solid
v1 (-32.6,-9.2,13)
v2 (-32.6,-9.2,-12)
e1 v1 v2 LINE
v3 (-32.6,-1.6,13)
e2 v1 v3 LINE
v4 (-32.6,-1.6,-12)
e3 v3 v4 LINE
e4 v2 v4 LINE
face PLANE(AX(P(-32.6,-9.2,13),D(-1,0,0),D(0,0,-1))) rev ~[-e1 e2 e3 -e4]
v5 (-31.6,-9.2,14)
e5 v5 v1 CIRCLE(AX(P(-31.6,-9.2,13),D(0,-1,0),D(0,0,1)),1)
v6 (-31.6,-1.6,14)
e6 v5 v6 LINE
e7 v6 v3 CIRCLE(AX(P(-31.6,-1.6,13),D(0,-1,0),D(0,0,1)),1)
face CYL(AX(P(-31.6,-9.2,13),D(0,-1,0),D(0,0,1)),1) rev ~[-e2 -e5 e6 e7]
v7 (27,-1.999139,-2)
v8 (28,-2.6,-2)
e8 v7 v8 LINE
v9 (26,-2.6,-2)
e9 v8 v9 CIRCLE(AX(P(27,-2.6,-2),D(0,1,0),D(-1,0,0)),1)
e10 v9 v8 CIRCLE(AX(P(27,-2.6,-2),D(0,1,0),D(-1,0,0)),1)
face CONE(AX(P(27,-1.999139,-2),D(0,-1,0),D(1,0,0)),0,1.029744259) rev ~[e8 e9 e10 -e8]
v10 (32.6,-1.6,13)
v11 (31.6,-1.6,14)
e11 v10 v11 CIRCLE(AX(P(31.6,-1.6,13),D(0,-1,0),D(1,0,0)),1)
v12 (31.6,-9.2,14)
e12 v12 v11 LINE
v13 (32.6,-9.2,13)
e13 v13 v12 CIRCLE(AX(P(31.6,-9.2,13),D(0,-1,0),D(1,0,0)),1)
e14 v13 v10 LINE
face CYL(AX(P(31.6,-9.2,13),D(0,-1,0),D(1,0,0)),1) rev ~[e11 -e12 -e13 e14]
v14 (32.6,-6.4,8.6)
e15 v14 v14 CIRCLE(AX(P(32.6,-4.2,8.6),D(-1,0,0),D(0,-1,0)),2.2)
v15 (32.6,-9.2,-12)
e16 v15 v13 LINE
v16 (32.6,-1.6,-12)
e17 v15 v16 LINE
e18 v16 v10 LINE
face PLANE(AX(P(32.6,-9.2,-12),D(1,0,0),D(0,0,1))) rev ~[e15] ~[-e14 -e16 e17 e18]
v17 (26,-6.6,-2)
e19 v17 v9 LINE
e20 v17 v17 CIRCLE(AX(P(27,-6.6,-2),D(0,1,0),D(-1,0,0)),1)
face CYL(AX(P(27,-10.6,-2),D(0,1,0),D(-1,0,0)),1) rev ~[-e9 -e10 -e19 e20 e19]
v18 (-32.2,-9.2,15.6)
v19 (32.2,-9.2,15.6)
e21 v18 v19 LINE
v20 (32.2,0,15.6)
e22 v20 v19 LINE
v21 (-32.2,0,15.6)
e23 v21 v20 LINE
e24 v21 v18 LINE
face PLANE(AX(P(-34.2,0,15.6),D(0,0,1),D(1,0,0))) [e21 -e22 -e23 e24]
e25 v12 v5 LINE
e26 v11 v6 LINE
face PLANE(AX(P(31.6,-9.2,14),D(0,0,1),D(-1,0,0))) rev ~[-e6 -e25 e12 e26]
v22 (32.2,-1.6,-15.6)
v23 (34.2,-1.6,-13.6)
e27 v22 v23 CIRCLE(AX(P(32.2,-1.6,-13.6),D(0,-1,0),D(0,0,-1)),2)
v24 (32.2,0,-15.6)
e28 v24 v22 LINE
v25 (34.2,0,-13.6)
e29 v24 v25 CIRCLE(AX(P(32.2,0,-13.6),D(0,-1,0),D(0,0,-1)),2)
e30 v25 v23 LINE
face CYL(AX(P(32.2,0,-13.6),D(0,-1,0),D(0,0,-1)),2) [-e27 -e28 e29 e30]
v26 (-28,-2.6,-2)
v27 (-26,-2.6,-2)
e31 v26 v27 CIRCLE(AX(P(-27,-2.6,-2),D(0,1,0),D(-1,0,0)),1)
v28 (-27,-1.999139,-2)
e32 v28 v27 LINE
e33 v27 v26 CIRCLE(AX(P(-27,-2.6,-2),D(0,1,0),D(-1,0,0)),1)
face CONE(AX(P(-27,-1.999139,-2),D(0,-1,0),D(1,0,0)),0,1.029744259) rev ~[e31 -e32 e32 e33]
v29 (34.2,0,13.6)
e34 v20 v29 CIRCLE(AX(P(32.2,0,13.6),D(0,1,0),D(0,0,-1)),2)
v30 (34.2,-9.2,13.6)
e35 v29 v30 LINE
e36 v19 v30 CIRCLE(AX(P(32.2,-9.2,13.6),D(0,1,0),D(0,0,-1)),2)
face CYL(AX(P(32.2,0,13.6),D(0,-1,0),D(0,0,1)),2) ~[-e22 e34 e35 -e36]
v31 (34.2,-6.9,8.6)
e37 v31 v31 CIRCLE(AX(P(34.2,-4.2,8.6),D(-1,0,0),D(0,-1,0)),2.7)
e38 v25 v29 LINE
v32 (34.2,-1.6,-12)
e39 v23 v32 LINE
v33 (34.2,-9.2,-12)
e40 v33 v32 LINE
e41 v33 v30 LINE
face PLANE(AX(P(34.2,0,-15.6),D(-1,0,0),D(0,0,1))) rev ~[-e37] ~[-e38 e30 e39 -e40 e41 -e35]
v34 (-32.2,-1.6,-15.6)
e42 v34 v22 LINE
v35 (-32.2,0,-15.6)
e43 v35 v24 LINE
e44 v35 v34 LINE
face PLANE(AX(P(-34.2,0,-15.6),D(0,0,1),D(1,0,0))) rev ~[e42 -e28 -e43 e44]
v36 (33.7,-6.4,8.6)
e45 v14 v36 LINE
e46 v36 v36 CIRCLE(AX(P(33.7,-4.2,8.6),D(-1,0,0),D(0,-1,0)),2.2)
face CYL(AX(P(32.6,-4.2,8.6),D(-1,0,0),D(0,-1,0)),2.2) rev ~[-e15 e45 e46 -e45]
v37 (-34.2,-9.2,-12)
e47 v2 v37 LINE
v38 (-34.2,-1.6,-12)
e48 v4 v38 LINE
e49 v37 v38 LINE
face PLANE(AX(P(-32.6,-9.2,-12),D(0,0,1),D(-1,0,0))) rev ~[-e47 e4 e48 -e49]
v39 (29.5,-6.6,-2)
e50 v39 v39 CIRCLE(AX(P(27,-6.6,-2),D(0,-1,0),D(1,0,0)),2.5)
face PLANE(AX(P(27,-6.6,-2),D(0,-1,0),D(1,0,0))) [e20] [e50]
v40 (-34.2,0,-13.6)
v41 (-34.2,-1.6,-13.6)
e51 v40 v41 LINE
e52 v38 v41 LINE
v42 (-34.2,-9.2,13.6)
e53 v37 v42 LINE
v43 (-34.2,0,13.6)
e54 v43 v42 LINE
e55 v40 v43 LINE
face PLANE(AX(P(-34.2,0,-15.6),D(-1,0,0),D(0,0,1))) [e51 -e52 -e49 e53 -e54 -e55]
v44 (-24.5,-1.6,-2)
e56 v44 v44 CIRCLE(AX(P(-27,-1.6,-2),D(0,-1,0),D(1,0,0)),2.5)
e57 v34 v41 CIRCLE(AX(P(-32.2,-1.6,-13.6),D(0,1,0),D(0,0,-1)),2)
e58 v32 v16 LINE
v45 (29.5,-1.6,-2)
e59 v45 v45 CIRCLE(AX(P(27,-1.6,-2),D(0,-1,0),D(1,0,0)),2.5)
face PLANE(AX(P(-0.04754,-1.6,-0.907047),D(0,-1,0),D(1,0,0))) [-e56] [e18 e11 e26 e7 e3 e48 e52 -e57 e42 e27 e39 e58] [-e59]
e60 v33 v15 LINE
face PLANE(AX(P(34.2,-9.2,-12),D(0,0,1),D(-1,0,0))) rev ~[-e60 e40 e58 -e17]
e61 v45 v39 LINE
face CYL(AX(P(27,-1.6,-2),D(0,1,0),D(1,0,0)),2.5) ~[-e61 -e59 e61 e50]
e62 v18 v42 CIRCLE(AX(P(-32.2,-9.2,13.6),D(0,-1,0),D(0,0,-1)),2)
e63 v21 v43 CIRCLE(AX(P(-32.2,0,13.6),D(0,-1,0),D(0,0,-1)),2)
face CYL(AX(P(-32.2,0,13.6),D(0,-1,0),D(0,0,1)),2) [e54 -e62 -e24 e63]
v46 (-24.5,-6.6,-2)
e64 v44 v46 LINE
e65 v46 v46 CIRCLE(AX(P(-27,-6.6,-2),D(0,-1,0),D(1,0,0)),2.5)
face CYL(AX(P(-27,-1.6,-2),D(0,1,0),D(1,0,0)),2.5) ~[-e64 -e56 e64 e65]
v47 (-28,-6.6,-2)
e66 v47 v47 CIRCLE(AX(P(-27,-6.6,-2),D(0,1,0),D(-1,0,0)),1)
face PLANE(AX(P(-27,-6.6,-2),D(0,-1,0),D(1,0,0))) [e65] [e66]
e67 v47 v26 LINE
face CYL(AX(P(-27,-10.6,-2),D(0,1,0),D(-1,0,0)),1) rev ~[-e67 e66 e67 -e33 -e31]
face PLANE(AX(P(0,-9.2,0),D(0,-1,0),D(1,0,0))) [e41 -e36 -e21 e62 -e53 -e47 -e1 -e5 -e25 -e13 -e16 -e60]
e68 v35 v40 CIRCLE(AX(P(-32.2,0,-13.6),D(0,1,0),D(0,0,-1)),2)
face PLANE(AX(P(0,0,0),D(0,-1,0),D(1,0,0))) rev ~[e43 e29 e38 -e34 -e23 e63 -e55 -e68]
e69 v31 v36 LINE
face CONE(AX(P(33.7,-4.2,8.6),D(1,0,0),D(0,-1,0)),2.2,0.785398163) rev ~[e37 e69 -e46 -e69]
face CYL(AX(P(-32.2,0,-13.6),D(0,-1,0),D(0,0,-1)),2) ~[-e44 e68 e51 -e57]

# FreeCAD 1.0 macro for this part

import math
import FreeCAD as App
import Part
import Sketcher


def edges_at(feature, points):
    """Names of the edges that pass closest to the given points."""
    edges = feature.Shape.Edges
    near = lambda p: min(range(len(edges)), key=lambda i: edges[i].distToShape(Part.Vertex(*p))[0])
    return sorted({f"Edge{near(p) + 1}" for p in points})

doc = App.newDocument("Part")
body = doc.addObject("PartDesign::Body", "Body")

sketch1 = body.newObject("Sketcher::SketchObject", "Sketch")
sketch1.AttachmentSupport = (doc.getObject("XZ_Plane"), [""])
sketch1.MapMode = "FlatFace"
sketch1.addGeometry([
    Part.LineSegment(App.Vector(-34.2, 15.6, 0), App.Vector(-34.2, -15.6, 0)),
    Part.LineSegment(App.Vector(-34.2, -15.6, 0), App.Vector(34.2, -15.6, 0)),
    Part.LineSegment(App.Vector(34.2, -15.6, 0), App.Vector(34.2, 15.6, 0)),
    Part.LineSegment(App.Vector(34.2, 15.6, 0), App.Vector(-34.2, 15.6, 0)),
], False)
sketch1.addConstraint([
    Sketcher.Constraint("Coincident", 0, 2, 1, 1),
    Sketcher.Constraint("Coincident", 1, 2, 2, 1),
    Sketcher.Constraint("Coincident", 2, 2, 3, 1),
    Sketcher.Constraint("Coincident", 3, 2, 0, 1),
    Sketcher.Constraint("Vertical", 0),
    Sketcher.Constraint("Horizontal", 1),
    Sketcher.Constraint("Vertical", 2),
    Sketcher.Constraint("Horizontal", 3),
    Sketcher.Constraint("Symmetric", 0, 2, 2, 2, -1, 1),
    Sketcher.Constraint("DistanceX", 1, 1, 1, 2, 68.4),
    Sketcher.Constraint("DistanceY", 0, 2, 0, 1, 31.2),
])
pad1 = body.newObject("PartDesign::Pad", "Pad")
pad1.Profile = sketch1
pad1.Length = 9.2

sketch2 = body.newObject("Sketcher::SketchObject", "Sketch001")
sketch2.AttachmentSupport = (doc.getObject("XZ_Plane"), [""])
sketch2.MapMode = "FlatFace"
sketch2.AttachmentOffset = App.Placement(App.Vector(0, 0, 9.2), App.Rotation())
sketch2.addGeometry([
    Part.LineSegment(App.Vector(31.6, 14, 0), App.Vector(-31.6, 14, 0)),
    Part.ArcOfCircle(Part.Circle(App.Vector(-31.6, 13, 0), App.Vector(0, 0, 1), 1), math.radians(90), math.radians(180)),
    Part.LineSegment(App.Vector(-32.6, 13, 0), App.Vector(-32.6, -12, 0)),
    Part.LineSegment(App.Vector(-32.6, -12, 0), App.Vector(-34.2, -12, 0)),
    Part.LineSegment(App.Vector(-34.2, -12, 0), App.Vector(-34.2, -15.6, 0)),
    Part.LineSegment(App.Vector(-34.2, -15.6, 0), App.Vector(34.2, -15.6, 0)),
    Part.LineSegment(App.Vector(34.2, -15.6, 0), App.Vector(34.2, -12, 0)),
    Part.LineSegment(App.Vector(34.2, -12, 0), App.Vector(32.6, -12, 0)),
    Part.LineSegment(App.Vector(32.6, -12, 0), App.Vector(32.6, 13, 0)),
    Part.ArcOfCircle(Part.Circle(App.Vector(31.6, 13, 0), App.Vector(0, 0, 1), 1), math.radians(0), math.radians(90)),
], False)
sketch2.addConstraint([
    Sketcher.Constraint("Tangent", 0, 2, 1, 1),
    Sketcher.Constraint("Tangent", 1, 2, 2, 1),
    Sketcher.Constraint("Coincident", 2, 2, 3, 1),
    Sketcher.Constraint("Coincident", 3, 2, 4, 1),
    Sketcher.Constraint("Coincident", 4, 2, 5, 1),
    Sketcher.Constraint("Coincident", 5, 2, 6, 1),
    Sketcher.Constraint("Coincident", 6, 2, 7, 1),
    Sketcher.Constraint("Coincident", 7, 2, 8, 1),
    Sketcher.Constraint("Tangent", 8, 2, 9, 1),
    Sketcher.Constraint("Tangent", 9, 2, 0, 1),
    Sketcher.Constraint("Horizontal", 0),
    Sketcher.Constraint("Vertical", 2),
    Sketcher.Constraint("Horizontal", 3),
    Sketcher.Constraint("Vertical", 4),
    Sketcher.Constraint("Horizontal", 5),
    Sketcher.Constraint("Vertical", 6),
    Sketcher.Constraint("Horizontal", 7),
    Sketcher.Constraint("Vertical", 8),
    Sketcher.Constraint("Equal", 1, 9),
    Sketcher.Constraint("Symmetric", 3, 2, 6, 2, -2),
    Sketcher.Constraint("Equal", 3, 7),
    Sketcher.Constraint("Radius", 1, 1.0),
    Sketcher.Constraint("DistanceY", 2, 2, 2, 1, 25.0),
    Sketcher.Constraint("DistanceX", 0, 2, 0, 1, 63.2),
    Sketcher.Constraint("DistanceX", 3, 2, 3, 1, 1.6),
    Sketcher.Constraint("DistanceY", 4, 2, 4, 1, 3.6),
    Sketcher.Constraint("DistanceY", -1, 1, 1, 3, 13.0),
])
pocket1 = body.newObject("PartDesign::Pocket", "Pocket")
pocket1.Profile = sketch2
pocket1.Length = 7.6
doc.recompute()

fillet = body.newObject("PartDesign::Fillet", "Fillet")
fillet.Base = (pocket1, edges_at(pocket1, [(34.2, -4.6, 15.6)]))
fillet.Radius = 2
doc.recompute()

fillet2 = body.newObject("PartDesign::Fillet", "Fillet001")
fillet2.Base = (fillet, edges_at(fillet, [(-34.2, -4.6, 15.6), (-34.2, -0.8, -15.6)]))
fillet2.Radius = 2
doc.recompute()

fillet3 = body.newObject("PartDesign::Fillet", "Fillet002")
fillet3.Base = (fillet2, edges_at(fillet2, [(34.2, -0.8, -15.6)]))
fillet3.Radius = 2

sketch3 = body.newObject("Sketcher::SketchObject", "Sketch002")
sketch3.AttachmentSupport = (doc.getObject("XZ_Plane"), [""])
sketch3.MapMode = "FlatFace"
sketch3.AttachmentOffset = App.Placement(App.Vector(0, 0, 1.6), App.Rotation())
sketch3.addGeometry([
    Part.Circle(App.Vector(-27, -2, 0), App.Vector(0, 0, 1), 2.5),
    Part.Circle(App.Vector(27, -2, 0), App.Vector(0, 0, 1), 2.5),
], False)
sketch3.addConstraint([
    Sketcher.Constraint("Equal", 0, 1),
    Sketcher.Constraint("Symmetric", 0, 3, 1, 3, -2),
    Sketcher.Constraint("Diameter", 0, 5.0),
    Sketcher.Constraint("DistanceX", 0, 3, -1, 1, 27.0),
    Sketcher.Constraint("DistanceY", 0, 3, -1, 1, 2.0),
])
pad2 = body.newObject("PartDesign::Pad", "Pad001")
pad2.Profile = sketch3
pad2.Length = 5

sketch4 = body.newObject("Sketcher::SketchObject", "Sketch003")
sketch4.AttachmentSupport = (doc.getObject("XZ_Plane"), [""])
sketch4.MapMode = "FlatFace"
sketch4.AttachmentOffset = App.Placement(App.Vector(0, 0, 6.6), App.Rotation())
sketch4.addGeometry(Part.Circle(App.Vector(-27, -2, 0), App.Vector(0, 0, 1), 1), False)
sketch4.addConstraint([
    Sketcher.Constraint("Diameter", 0, 2.0),
    Sketcher.Constraint("DistanceX", 0, 3, -1, 1, 27.0),
    Sketcher.Constraint("DistanceY", 0, 3, -1, 1, 2.0),
])
doc.recompute()
hole = body.newObject("PartDesign::Hole", "Hole")
hole.Profile = sketch4
hole.ThreadType = "None"
hole.Diameter = 2
hole.DepthType = "Dimension"
hole.Depth = 4
hole.DrillPoint = "Angled"
hole.DrillPointAngle = 118

sketch5 = body.newObject("Sketcher::SketchObject", "Sketch004")
sketch5.AttachmentSupport = (doc.getObject("XZ_Plane"), [""])
sketch5.MapMode = "FlatFace"
sketch5.AttachmentOffset = App.Placement(App.Vector(0, 0, 6.6), App.Rotation())
sketch5.addGeometry(Part.Circle(App.Vector(27, -2, 0), App.Vector(0, 0, 1), 1), False)
sketch5.addConstraint([
    Sketcher.Constraint("Diameter", 0, 2.0),
    Sketcher.Constraint("DistanceX", -1, 1, 0, 3, 27.0),
    Sketcher.Constraint("DistanceY", 0, 3, -1, 1, 2.0),
])
doc.recompute()
hole2 = body.newObject("PartDesign::Hole", "Hole001")
hole2.Profile = sketch5
hole2.ThreadType = "None"
hole2.Diameter = 2
hole2.DepthType = "Dimension"
hole2.Depth = 4
hole2.DrillPoint = "Angled"
hole2.DrillPointAngle = 118

sketch6 = body.newObject("Sketcher::SketchObject", "Sketch005")
sketch6.AttachmentSupport = (doc.getObject("YZ_Plane"), [""])
sketch6.MapMode = "FlatFace"
sketch6.AttachmentOffset = App.Placement(App.Vector(0, 0, 32.6), App.Rotation())
sketch6.addGeometry(Part.Circle(App.Vector(-4.2, 8.6, 0), App.Vector(0, 0, 1), 2.2), False)
sketch6.addConstraint([
    Sketcher.Constraint("Diameter", 0, 4.4),
    Sketcher.Constraint("DistanceX", 0, 3, -1, 1, 4.2),
    Sketcher.Constraint("DistanceY", -1, 1, 0, 3, 8.6),
])
pocket2 = body.newObject("PartDesign::Pocket", "Pocket001")
pocket2.Profile = sketch6
pocket2.Type = "ThroughAll"
pocket2.Reversed = True
doc.recompute()

chamfer = body.newObject("PartDesign::Chamfer", "Chamfer")
chamfer.Base = (pocket2, edges_at(pocket2, [(34.2, -2, 8.6)]))
chamfer.Size = 0.5

doc.recompute()
